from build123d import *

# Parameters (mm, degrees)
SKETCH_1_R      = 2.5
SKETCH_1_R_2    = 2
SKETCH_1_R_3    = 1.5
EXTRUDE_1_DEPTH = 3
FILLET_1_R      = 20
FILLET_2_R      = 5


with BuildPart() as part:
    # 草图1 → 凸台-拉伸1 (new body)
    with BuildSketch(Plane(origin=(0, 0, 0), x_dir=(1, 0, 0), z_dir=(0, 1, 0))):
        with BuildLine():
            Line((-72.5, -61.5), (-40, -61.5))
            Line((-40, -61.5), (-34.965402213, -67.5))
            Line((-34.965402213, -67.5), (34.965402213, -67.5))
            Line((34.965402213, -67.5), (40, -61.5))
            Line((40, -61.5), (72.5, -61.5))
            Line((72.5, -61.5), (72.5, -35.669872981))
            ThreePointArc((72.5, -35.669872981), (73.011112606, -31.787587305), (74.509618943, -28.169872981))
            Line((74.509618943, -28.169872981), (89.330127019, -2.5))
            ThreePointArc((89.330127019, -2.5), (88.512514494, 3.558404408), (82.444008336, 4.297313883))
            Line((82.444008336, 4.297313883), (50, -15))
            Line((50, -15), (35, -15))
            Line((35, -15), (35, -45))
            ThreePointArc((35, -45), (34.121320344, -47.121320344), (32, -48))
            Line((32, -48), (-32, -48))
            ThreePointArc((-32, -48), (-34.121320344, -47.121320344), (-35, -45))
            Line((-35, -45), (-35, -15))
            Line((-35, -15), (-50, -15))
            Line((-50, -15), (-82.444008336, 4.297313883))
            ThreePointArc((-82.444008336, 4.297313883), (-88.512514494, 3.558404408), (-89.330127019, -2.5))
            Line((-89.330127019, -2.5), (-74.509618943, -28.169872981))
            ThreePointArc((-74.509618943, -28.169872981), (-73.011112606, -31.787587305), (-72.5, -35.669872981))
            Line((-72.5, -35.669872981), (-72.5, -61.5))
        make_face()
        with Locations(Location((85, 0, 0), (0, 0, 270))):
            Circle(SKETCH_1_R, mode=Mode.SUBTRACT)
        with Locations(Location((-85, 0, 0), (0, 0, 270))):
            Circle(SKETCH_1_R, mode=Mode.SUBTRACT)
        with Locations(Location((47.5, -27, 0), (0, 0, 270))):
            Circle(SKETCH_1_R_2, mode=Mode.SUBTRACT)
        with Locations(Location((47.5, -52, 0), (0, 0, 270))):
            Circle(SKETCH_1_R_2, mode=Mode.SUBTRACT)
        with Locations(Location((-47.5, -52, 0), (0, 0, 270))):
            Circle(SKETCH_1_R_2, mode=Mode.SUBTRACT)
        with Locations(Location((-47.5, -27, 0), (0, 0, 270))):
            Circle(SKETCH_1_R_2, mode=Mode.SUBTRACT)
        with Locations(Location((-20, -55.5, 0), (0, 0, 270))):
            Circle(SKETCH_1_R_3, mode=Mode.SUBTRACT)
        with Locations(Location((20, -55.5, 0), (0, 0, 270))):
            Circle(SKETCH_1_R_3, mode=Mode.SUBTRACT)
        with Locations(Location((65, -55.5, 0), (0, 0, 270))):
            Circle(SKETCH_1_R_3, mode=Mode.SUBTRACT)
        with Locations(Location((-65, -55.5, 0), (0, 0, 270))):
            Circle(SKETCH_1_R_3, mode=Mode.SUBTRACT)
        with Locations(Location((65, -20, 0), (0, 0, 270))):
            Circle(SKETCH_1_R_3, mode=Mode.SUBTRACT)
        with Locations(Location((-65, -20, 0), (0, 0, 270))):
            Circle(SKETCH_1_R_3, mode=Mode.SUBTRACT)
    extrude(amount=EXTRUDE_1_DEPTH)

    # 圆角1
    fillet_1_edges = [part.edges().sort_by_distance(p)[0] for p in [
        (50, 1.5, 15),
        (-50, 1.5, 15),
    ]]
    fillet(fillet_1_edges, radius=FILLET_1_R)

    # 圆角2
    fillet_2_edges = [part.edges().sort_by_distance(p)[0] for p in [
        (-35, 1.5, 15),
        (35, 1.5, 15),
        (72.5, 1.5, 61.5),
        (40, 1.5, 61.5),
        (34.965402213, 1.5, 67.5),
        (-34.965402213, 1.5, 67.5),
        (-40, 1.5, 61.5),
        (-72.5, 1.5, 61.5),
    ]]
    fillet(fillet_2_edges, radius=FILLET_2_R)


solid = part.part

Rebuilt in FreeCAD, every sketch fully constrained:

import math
import FreeCAD as App
import Part
import Sketcher
from FreeCAD import Vector
Q = App.Units.Quantity


def edges_at(feature, points):
    """Names of the edges that pass closest to the given points."""
    edges = feature.Shape.Edges
    near = lambda p: min(range(len(edges)), key=lambda i: edges[i].distToShape(Part.Vertex(*p))[0])
    return sorted({f"Edge{near(p) + 1}" for p in points})

doc = App.newDocument("Part")
body = doc.addObject("PartDesign::Body", "Body")

# Sketch on XZ plane
sketch1 = doc.addObject("Sketcher::SketchObject", "Sketch")
body.addObject(sketch1)
sketch1.AttachmentSupport = (doc.XZ_Plane, [""])
sketch1.MapMode = "FlatFace"
sketch1.addGeometry([
    Part.LineSegment(Vector(-72.5, 61.5, 0), Vector(-40, 61.5, 0)),  # 0
    Part.LineSegment(Vector(-40, 61.5, 0), Vector(-35, 67.5, 0)),  # 1
    Part.LineSegment(Vector(-35, 67.5, 0), Vector(35, 67.5, 0)),  # 2
    Part.LineSegment(Vector(35, 67.5, 0), Vector(40, 61.5, 0)),  # 3
    Part.LineSegment(Vector(40, 61.5, 0), Vector(72.5, 61.5, 0)),  # 4
    Part.LineSegment(Vector(72.5, 61.5, 0), Vector(72.5, 35.7, 0)),  # 5
    Part.ArcOfCircle(Part.Circle(Vector(87.5, 35.7, 0), Vector(0, 0, 1), 15), math.radians(-180), math.radians(-150)),  # 6
    Part.LineSegment(Vector(74.5, 28.2, 0), Vector(89.3, 2.5, 0)),  # 7
    Part.ArcOfCircle(Part.Circle(Vector(85, 0, 0), Vector(0, 0, 1), 5), math.radians(-121), math.radians(30)),  # 8
    Part.LineSegment(Vector(82.4, -4.3, 0), Vector(50, 15, 0)),  # 9
    Part.LineSegment(Vector(50, 15, 0), Vector(35, 15, 0)),  # 10
    Part.LineSegment(Vector(35, 15, 0), Vector(35, 45, 0)),  # 11
    Part.ArcOfCircle(Part.Circle(Vector(32, 45, 0), Vector(0, 0, 1), 3), math.radians(0), math.radians(90)),  # 12
    Part.LineSegment(Vector(32, 48, 0), Vector(-32, 48, 0)),  # 13
    Part.ArcOfCircle(Part.Circle(Vector(-32, 45, 0), Vector(0, 0, 1), 3), math.radians(90), math.radians(180)),  # 14
    Part.LineSegment(Vector(-35, 45, 0), Vector(-35, 15, 0)),  # 15
    Part.LineSegment(Vector(-35, 15, 0), Vector(-50, 15, 0)),  # 16
    Part.LineSegment(Vector(-50, 15, 0), Vector(-82.4, -4.3, 0)),  # 17
    Part.ArcOfCircle(Part.Circle(Vector(-85, 0, 0), Vector(0, 0, 1), 5), math.radians(150), math.radians(301)),  # 18
    Part.LineSegment(Vector(-89.3, 2.5, 0), Vector(-74.5, 28.2, 0)),  # 19
    Part.ArcOfCircle(Part.Circle(Vector(-87.5, 35.7, 0), Vector(0, 0, 1), 15), math.radians(-30), math.radians(0)),  # 20
    Part.LineSegment(Vector(-72.5, 35.7, 0), Vector(-72.5, 61.5, 0)),  # 21
    Part.Circle(Vector(-65, 55.5, 0), Vector(0, 0, 1), 1.5),  # 22
    Part.Circle(Vector(-47.5, 52, 0), Vector(0, 0, 1), 2),  # 23
    Part.Circle(Vector(-20, 55.5, 0), Vector(0, 0, 1), 1.5),  # 24
    Part.Circle(Vector(20, 55.5, 0), Vector(0, 0, 1), 1.5),  # 25
    Part.Circle(Vector(65, 55.5, 0), Vector(0, 0, 1), 1.5),  # 26
    Part.Circle(Vector(47.5, 52, 0), Vector(0, 0, 1), 2),  # 27
    Part.Circle(Vector(-47.5, 27, 0), Vector(0, 0, 1), 2),  # 28
    Part.Circle(Vector(-65, 20, 0), Vector(0, 0, 1), 1.5),  # 29
    Part.Circle(Vector(-85, 0, 0), Vector(0, 0, 1), 2.5),  # 30
    Part.Circle(Vector(47.5, 27, 0), Vector(0, 0, 1), 2),  # 31
    Part.Circle(Vector(65, 20, 0), Vector(0, 0, 1), 1.5),  # 32
    Part.Circle(Vector(85, 0, 0), Vector(0, 0, 1), 2.5),  # 33
], False)
sketch1.addConstraint([
    Sketcher.Constraint("Coincident", 0, 2, 1, 1),
    Sketcher.Constraint("Coincident", 1, 2, 2, 1),
    Sketcher.Constraint("Coincident", 2, 2, 3, 1),
    Sketcher.Constraint("Coincident", 3, 2, 4, 1),
    Sketcher.Constraint("Coincident", 4, 2, 5, 1),
    Sketcher.Constraint("Tangent", 5, 2, 6, 1),
    Sketcher.Constraint("Tangent", 6, 2, 7, 1),
    Sketcher.Constraint("Tangent", 7, 2, 8, 2),
    Sketcher.Constraint("Tangent", 8, 1, 9, 1),
    Sketcher.Constraint("Coincident", 9, 2, 10, 1),
    Sketcher.Constraint("Coincident", 10, 2, 11, 1),
    Sketcher.Constraint("Tangent", 11, 2, 12, 1),
    Sketcher.Constraint("Tangent", 12, 2, 13, 1),
    Sketcher.Constraint("Tangent", 13, 2, 14, 1),
    Sketcher.Constraint("Tangent", 14, 2, 15, 1),
    Sketcher.Constraint("Coincident", 15, 2, 16, 1),
    Sketcher.Constraint("Coincident", 16, 2, 17, 1),
    Sketcher.Constraint("Tangent", 17, 2, 18, 2),
    Sketcher.Constraint("Tangent", 18, 1, 19, 1),
    Sketcher.Constraint("Tangent", 19, 2, 20, 1),
    Sketcher.Constraint("Tangent", 20, 2, 21, 1),
    Sketcher.Constraint("Coincident", 21, 2, 0, 1),
    Sketcher.Constraint("Horizontal", 0),
    Sketcher.Constraint("Horizontal", 2),
    Sketcher.Constraint("Horizontal", 4),
    Sketcher.Constraint("Vertical", 5),
    Sketcher.Constraint("Horizontal", 10),
    Sketcher.Constraint("Vertical", 11),
    Sketcher.Constraint("Horizontal", 13),
    Sketcher.Constraint("Vertical", 15),
    Sketcher.Constraint("Horizontal", 16),
    Sketcher.Constraint("Vertical", 21),
    Sketcher.Constraint("Coincident", 30, 3, 18, 3),
    Sketcher.Constraint("Coincident", 33, 3, 8, 3),
    Sketcher.Constraint("Equal", 12, 14),
    Sketcher.Constraint("Equal", 8, 18),
    Sketcher.Constraint("Equal", 6, 20),
    Sketcher.Constraint("Equal", 22, 24),
    Sketcher.Constraint("Equal", 24, 25),
    Sketcher.Constraint("Equal", 25, 26),
    Sketcher.Constraint("Equal", 23, 27),
    Sketcher.Constraint("Equal", 27, 28),
    Sketcher.Constraint("Equal", 26, 29),
    Sketcher.Constraint("Equal", 28, 31),
    Sketcher.Constraint("Equal", 29, 32),
    Sketcher.Constraint("Equal", 30, 33),
    Sketcher.Constraint("Symmetric", 8, 3, 18, 3, -1, 1),
    Sketcher.Constraint("Symmetric", 6, 3, 20, 3, -2),
    Sketcher.Constraint("Symmetric", 24, 3, 25, 3, -2),
    Sketcher.Constraint("Symmetric", 22, 3, 26, 3, -2),
    Sketcher.Constraint("Symmetric", 23, 3, 27, 3, -2),
    Sketcher.Constraint("Symmetric", 28, 3, 31, 3, -2),
    Sketcher.Constraint("Symmetric", 29, 3, 32, 3, -2),
    Sketcher.Constraint("Symmetric", 0, 2, 3, 2, -2),
    Sketcher.Constraint("Symmetric", 10, 2, 15, 2, -2),
    Sketcher.Constraint("Symmetric", 8, 1, 17, 2, -2),
    Sketcher.Constraint("Horizontal", 22, 3, 24, 3),
    Sketcher.Constraint("Vertical", 23, 3, 28, 3),
    Sketcher.Constraint("Vertical", 22, 3, 29, 3),
    Sketcher.Constraint("Equal", 1, 3),
    Sketcher.Constraint("Diameter", 22, 3.0),
    Sketcher.Constraint("Diameter", 23, 4.0),
    Sketcher.Constraint("Diameter", 30, 5.0),
    Sketcher.Constraint("Radius", 6, 15.0),
    Sketcher.Constraint("Radius", 8, 5.0),
    Sketcher.Constraint("Radius", 12, 3.0),
    Sketcher.Constraint("DistanceX", 10, 2, 10, 1, 15.0),
    Sketcher.Constraint("DistanceX", 13, 2, 13, 1, 64.0),
    Sketcher.Constraint("DistanceY", 11, 1, 11, 2, 30.0),
    Sketcher.Constraint("Angle", 1, Q("50 deg")),
    Sketcher.Constraint("Angle", 7, Q("-60 deg")),
    Sketcher.Constraint("DistanceX", 0, 1, 0, 2, 32.5),
    Sketcher.Constraint("DistanceX", -1, 1, 8, 3, 85.0),
    Sketcher.Constraint("DistanceY", -1, 1, 12, 3, 45.0),
    Sketcher.Constraint("DistanceX", 22, 3, -1, 1, 65.0),
    Sketcher.Constraint("DistanceY", -1, 1, 23, 3, 52.0),
    Sketcher.Constraint("DistanceX", 24, 3, -1, 1, 20.0),
    Sketcher.Constraint("DistanceY", -1, 1, 28, 3, 27.0),
    Sketcher.Constraint("DistanceY", -1, 1, 29, 3, 20.0),
    Sketcher.Constraint("DistanceX", 0, 2, -1, 1, 40.0),
    Sketcher.Constraint("DistanceX", 20, 3, 23, 3, 40.0),
    Sketcher.Constraint("DistanceY", 24, 3, 0, 2, 6.0),
    Sketcher.Constraint("DistanceY", 0, 2, 1, 2, 6.0),
    Sketcher.Constraint("DistanceY", -1, 1, 22, 3, 55.5),
])
pad1 = doc.addObject("PartDesign::Pad", "Pad")
body.addObject(pad1)
pad1.Profile = sketch1
pad1.Length = 3
pad1.Reversed = True
doc.recompute()

fillet = doc.addObject("PartDesign::Fillet", "Fillet")
body.addObject(fillet)
fillet.Base = (pad1, edges_at(pad1, [(50, 1.5, 15), (-50, 1.5, 15)]))
fillet.Radius = 20
doc.recompute()

fillet2 = doc.addObject("PartDesign::Fillet", "Fillet001")
body.addObject(fillet2)
fillet2.Base = (fillet, edges_at(fillet, [
    (-35, 1.5, 15),
    (35, 1.5, 15),
    (72.5, 1.5, 61.5),
    (40, 1.5, 61.5),
    (34.965, 1.5, 67.5),
    (-34.965, 1.5, 67.5),
    (-40, 1.5, 61.5),
    (-72.5, 1.5, 61.5),
]))
fillet2.Radius = 5

doc.recompute()
